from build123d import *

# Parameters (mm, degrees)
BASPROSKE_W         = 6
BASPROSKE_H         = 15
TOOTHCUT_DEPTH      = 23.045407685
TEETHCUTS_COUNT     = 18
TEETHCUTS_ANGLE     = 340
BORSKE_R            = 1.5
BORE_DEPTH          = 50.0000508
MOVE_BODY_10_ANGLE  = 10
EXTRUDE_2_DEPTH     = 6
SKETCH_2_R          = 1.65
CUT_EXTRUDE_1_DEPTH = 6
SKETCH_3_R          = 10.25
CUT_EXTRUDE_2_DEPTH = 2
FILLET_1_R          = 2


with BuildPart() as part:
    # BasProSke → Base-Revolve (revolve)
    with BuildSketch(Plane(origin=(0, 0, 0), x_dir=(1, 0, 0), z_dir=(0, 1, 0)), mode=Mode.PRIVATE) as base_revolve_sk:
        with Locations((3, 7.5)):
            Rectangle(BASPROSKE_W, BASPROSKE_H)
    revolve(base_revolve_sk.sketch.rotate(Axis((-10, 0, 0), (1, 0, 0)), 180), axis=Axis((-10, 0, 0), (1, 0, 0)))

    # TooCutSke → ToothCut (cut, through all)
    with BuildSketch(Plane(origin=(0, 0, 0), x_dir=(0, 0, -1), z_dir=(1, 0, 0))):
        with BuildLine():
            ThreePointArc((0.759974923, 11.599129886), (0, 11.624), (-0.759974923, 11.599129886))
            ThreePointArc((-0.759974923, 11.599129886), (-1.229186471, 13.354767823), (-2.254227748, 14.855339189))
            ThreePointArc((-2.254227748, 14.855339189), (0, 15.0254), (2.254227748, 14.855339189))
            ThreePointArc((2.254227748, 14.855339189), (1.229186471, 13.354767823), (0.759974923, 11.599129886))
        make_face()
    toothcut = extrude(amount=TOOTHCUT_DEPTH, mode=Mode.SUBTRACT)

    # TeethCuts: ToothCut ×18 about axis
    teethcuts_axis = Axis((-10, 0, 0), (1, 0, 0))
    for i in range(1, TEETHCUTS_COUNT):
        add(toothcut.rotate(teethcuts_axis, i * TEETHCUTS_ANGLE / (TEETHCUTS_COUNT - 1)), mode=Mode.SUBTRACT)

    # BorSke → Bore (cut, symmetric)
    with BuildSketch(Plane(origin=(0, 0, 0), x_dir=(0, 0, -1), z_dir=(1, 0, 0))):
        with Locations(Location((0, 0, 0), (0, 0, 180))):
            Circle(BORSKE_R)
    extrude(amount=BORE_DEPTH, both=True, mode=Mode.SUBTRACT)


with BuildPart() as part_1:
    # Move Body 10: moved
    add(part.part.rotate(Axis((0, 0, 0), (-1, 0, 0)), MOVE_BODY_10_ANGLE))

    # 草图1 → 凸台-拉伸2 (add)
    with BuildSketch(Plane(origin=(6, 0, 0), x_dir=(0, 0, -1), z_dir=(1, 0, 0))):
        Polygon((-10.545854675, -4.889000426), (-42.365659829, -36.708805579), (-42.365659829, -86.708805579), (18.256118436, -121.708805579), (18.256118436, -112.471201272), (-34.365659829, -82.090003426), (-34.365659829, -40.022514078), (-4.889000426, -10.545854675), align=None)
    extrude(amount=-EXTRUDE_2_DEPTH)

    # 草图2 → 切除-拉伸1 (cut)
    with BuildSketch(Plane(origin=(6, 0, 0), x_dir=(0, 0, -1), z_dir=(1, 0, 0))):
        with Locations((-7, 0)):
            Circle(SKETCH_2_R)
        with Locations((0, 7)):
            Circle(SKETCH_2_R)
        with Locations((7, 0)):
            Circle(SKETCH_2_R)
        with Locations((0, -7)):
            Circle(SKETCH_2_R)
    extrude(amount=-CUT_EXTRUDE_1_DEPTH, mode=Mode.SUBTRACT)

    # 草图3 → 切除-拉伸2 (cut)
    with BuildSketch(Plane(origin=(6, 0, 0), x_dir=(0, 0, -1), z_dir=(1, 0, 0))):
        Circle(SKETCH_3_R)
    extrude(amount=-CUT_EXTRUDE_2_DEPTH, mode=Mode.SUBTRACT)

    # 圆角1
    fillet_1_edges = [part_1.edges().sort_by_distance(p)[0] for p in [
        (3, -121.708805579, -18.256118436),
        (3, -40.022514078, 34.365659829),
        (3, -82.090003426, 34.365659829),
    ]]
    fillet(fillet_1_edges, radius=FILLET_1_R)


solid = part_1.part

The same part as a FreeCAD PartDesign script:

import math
import FreeCAD as App
import Part
import Sketcher
from FreeCAD import Vector
Q = App.Units.Quantity


def edges_at(feature, points):
    """Names of the edges that pass closest to the given points."""
    edges = feature.Shape.Edges
    near = lambda p: min(range(len(edges)), key=lambda i: edges[i].distToShape(Part.Vertex(*p))[0])
    return sorted({f"Edge{near(p) + 1}" for p in points})


def add_polygon(sketch, points):
    """Adds a closed chain of lines whose ends are joined by coincident constraints."""
    first, n = sketch.GeometryCount, len(points)
    for a, b in zip(points, points[1:] + points[:1]):
        sketch.addGeometry(Part.LineSegment(App.Vector(*a, 0), App.Vector(*b, 0)), False)
    for i in range(n):
        sketch.addConstraint(Sketcher.Constraint("Coincident", first + i, 2, first + (i + 1) % n, 1))

doc = App.newDocument("Part")
body = doc.addObject("PartDesign::Body", "Body")

sketch1 = body.newObject("Sketcher::SketchObject", "Sketch")
sketch1.AttachmentSupport = (doc.getObject("XZ_Plane"), [""])
sketch1.MapMode = "FlatFace"
add_polygon(sketch1, [(0, -15), (0, 0), (6, 0), (6, -15)])
sketch1.addConstraint([
    Sketcher.Constraint("Vertical", 0),
    Sketcher.Constraint("Horizontal", 1),
    Sketcher.Constraint("Vertical", 2),
    Sketcher.Constraint("Horizontal", 3),
    Sketcher.Constraint("Coincident", 0, 2, -1, 1),
    Sketcher.Constraint("DistanceX", 1, 1, 1, 2, Q("6 mm")),
    Sketcher.Constraint("DistanceY", 0, 1, 0, 2, Q("15 mm")),
])
revolution = body.newObject("PartDesign::Revolution", "Revolution")
revolution.Profile = sketch1
revolution.ReferenceAxis = (sketch1, ["H_Axis"])
revolution.Angle = 360

sketch2 = body.newObject("Sketcher::SketchObject", "Sketch001")
sketch2.AttachmentSupport = (doc.getObject("YZ_Plane"), [""])
sketch2.MapMode = "FlatFace"
sketch2.addGeometry([
    Part.ArcOfCircle(Part.Circle(Vector(0, 0, 0), Vector(0, 0, 1), 11.6), math.radians(-3.75), math.radians(3.75)),
    Part.ArcOfCircle(Part.Circle(Vector(11.1, -6.1, 0), Vector(0, 0, 1), 5.4), math.radians(46), math.radians(85)),
    Part.ArcOfCircle(Part.Circle(Vector(0, 0, 0), Vector(0, 0, 1), 15), math.radians(-8.63), math.radians(8.63)),
    Part.ArcOfCircle(Part.Circle(Vector(11.1, 6.1, 0), Vector(0, 0, 1), 5.4), math.radians(-85), math.radians(-46)),
], False)
sketch2.addConstraint([
    Sketcher.Constraint("Coincident", 0, 1, 1, 2),
    Sketcher.Constraint("Coincident", 1, 1, 2, 1),
    Sketcher.Constraint("Coincident", 2, 2, 3, 2),
    Sketcher.Constraint("Coincident", 3, 1, 0, 2),
    Sketcher.Constraint("Coincident", 0, 3, -1, 1),
    Sketcher.Constraint("Coincident", 2, 3, -1, 1),
    Sketcher.Constraint("Equal", 1, 3),
    Sketcher.Constraint("Symmetric", 1, 3, 3, 3, -1),
    Sketcher.Constraint("Radius", 1, Q("5.4 mm")),
    Sketcher.Constraint("Radius", 0, Q("11.624 mm")),
    Sketcher.Constraint("Radius", 2, Q("15.0254 mm")),
    Sketcher.Constraint("DistanceX", -1, 1, 1, 3, Q("11.102561 mm")),
    Sketcher.Constraint("DistanceX", -1, 1, 0, 1, Q("11.59913 mm")),
])
pocket1 = body.newObject("PartDesign::Pocket", "Pocket")
pocket1.Profile = sketch2
pocket1.Type = "ThroughAll"
pocket1.Reversed = True
doc.recompute()

polarpattern = body.newObject("PartDesign::PolarPattern", "PolarPattern")
polarpattern.Originals = [pocket1]
polarpattern.Axis = (doc.getObject("X_Axis"), [""])
polarpattern.Angle = 360
polarpattern.Occurrences = 18
body.Tip = polarpattern

sketch3 = body.newObject("Sketcher::SketchObject", "Sketch002")
sketch3.AttachmentSupport = (doc.getObject("YZ_Plane"), [""])
sketch3.MapMode = "FlatFace"
sketch3.addGeometry(Part.Circle(Vector(0, 0, 0), Vector(0, 0, 1), 1.5), False)
sketch3.addConstraint([
    Sketcher.Constraint("Coincident", 0, 3, -1, 1),
    Sketcher.Constraint("Diameter", 0, Q("3 mm")),
])
pocket2 = body.newObject("PartDesign::Pocket", "Pocket001")
pocket2.Profile = sketch3
pocket2.Length = 100.000102
pocket2.Midplane = True
body2 = doc.addObject("PartDesign::Body", "Body001")
doc.recompute()

body.Placement = App.Placement(Vector(0, 0, 0), App.Rotation(Vector(-1, 0, 0), 10))
boolean = body2.newObject("PartDesign::Boolean", "Boolean")
boolean.Type = "Fuse"
boolean.addObjects([body])

sketch4 = body2.newObject("Sketcher::SketchObject", "Sketch003")
sketch4.AttachmentSupport = (doc.getObject("YZ_Plane001"), [""])
sketch4.MapMode = "FlatFace"
sketch4.AttachmentOffset = App.Placement(Vector(0, 0, 6), App.Rotation())
add_polygon(sketch4, [(-5, 11), (-37, 42), (-87, 42), (-122, -18), (-112, -18), (-82, 34), (-40, 34), (-11, 5)])
sketch4.addConstraint([
    Sketcher.Constraint("Horizontal", 1),
    Sketcher.Constraint("Horizontal", 3),
    Sketcher.Constraint("Horizontal", 5),
    Sketcher.Constraint("Parallel", 2, 4),
    Sketcher.Constraint("Parallel", 0, 6),
    Sketcher.Constraint("Perpendicular", 6, 7),
    Sketcher.Constraint("DistanceX", 1, 2, 1, 1, Q("50 mm")),
    Sketcher.Constraint("Angle", 0, Q("135 deg")),
    Sketcher.Constraint("Angle", 2, Q("-120 deg")),
    Sketcher.Constraint("Distance", 0, Q("45 mm")),
    Sketcher.Constraint("Distance", 2, Q("70 mm")),
    Sketcher.Constraint("Distance", 7, Q("8 mm")),
    Sketcher.Constraint("DistanceY", 4, 2, 1, 2, Q("8 mm")),
    Sketcher.Constraint("DistanceY", -1, 1, 6, 2, Q("4.889 mm")),
    Sketcher.Constraint("DistanceX", 7, 2, -1, 1, Q("4.889 mm")),
    Sketcher.Constraint("DistanceX", 5, 1, 5, 2, Q("42.067489 mm")),
])
pad1 = body2.newObject("PartDesign::Pad", "Pad")
pad1.Profile = sketch4
pad1.Length = 6
pad1.Reversed = True

sketch5 = body2.newObject("Sketcher::SketchObject", "Sketch004")
sketch5.AttachmentSupport = (doc.getObject("YZ_Plane001"), [""])
sketch5.MapMode = "FlatFace"
sketch5.AttachmentOffset = App.Placement(Vector(0, 0, 6), App.Rotation())
sketch5.addGeometry([
    Part.Circle(Vector(0, 7, 0), Vector(0, 0, 1), 1.6),
    Part.Circle(Vector(7, 0, 0), Vector(0, 0, 1), 1.6),
    Part.Circle(Vector(0, -7, 0), Vector(0, 0, 1), 1.6),
    Part.Circle(Vector(-7, 0, 0), Vector(0, 0, 1), 1.6),
], False)
sketch5.addConstraint([
    Sketcher.Constraint("Equal", 0, 1),
    Sketcher.Constraint("Equal", 1, 2),
    Sketcher.Constraint("Equal", 2, 3),
    Sketcher.Constraint("Symmetric", 0, 3, 2, 3, -1, 1),
    Sketcher.Constraint("Symmetric", 1, 3, 3, 3, -1, 1),
    Sketcher.Constraint("PointOnObject", 0, 3, -2),
    Sketcher.Constraint("PointOnObject", 1, 3, -1),
    Sketcher.Constraint("Diameter", 0, Q("3.3 mm")),
    Sketcher.Constraint("DistanceY", -1, 1, 0, 3, Q("7 mm")),
    Sketcher.Constraint("DistanceX", -1, 1, 1, 3, Q("7 mm")),
])
pocket3 = body2.newObject("PartDesign::Pocket", "Pocket002")
pocket3.Profile = sketch5
pocket3.Length = 6

sketch6 = body2.newObject("Sketcher::SketchObject", "Sketch005")
sketch6.AttachmentSupport = (doc.getObject("YZ_Plane001"), [""])
sketch6.MapMode = "FlatFace"
sketch6.AttachmentOffset = App.Placement(Vector(0, 0, 6), App.Rotation())
sketch6.addGeometry(Part.Circle(Vector(0, 0, 0), Vector(0, 0, 1), 10), False)
sketch6.addConstraint([
    Sketcher.Constraint("Coincident", 0, 3, -1, 1),
    Sketcher.Constraint("Diameter", 0, Q("20.5 mm")),
])
pocket4 = body2.newObject("PartDesign::Pocket", "Pocket003")
pocket4.Profile = sketch6
pocket4.Length = 2
doc.recompute()

fillet = body2.newObject("PartDesign::Fillet", "Fillet")
fillet.Base = (pocket4, edges_at(pocket4, [(3, -121.709, -18.256), (3, -40.023, 34.366), (3, -82.09, 34.366)]))
fillet.Radius = 2

doc.recompute()
